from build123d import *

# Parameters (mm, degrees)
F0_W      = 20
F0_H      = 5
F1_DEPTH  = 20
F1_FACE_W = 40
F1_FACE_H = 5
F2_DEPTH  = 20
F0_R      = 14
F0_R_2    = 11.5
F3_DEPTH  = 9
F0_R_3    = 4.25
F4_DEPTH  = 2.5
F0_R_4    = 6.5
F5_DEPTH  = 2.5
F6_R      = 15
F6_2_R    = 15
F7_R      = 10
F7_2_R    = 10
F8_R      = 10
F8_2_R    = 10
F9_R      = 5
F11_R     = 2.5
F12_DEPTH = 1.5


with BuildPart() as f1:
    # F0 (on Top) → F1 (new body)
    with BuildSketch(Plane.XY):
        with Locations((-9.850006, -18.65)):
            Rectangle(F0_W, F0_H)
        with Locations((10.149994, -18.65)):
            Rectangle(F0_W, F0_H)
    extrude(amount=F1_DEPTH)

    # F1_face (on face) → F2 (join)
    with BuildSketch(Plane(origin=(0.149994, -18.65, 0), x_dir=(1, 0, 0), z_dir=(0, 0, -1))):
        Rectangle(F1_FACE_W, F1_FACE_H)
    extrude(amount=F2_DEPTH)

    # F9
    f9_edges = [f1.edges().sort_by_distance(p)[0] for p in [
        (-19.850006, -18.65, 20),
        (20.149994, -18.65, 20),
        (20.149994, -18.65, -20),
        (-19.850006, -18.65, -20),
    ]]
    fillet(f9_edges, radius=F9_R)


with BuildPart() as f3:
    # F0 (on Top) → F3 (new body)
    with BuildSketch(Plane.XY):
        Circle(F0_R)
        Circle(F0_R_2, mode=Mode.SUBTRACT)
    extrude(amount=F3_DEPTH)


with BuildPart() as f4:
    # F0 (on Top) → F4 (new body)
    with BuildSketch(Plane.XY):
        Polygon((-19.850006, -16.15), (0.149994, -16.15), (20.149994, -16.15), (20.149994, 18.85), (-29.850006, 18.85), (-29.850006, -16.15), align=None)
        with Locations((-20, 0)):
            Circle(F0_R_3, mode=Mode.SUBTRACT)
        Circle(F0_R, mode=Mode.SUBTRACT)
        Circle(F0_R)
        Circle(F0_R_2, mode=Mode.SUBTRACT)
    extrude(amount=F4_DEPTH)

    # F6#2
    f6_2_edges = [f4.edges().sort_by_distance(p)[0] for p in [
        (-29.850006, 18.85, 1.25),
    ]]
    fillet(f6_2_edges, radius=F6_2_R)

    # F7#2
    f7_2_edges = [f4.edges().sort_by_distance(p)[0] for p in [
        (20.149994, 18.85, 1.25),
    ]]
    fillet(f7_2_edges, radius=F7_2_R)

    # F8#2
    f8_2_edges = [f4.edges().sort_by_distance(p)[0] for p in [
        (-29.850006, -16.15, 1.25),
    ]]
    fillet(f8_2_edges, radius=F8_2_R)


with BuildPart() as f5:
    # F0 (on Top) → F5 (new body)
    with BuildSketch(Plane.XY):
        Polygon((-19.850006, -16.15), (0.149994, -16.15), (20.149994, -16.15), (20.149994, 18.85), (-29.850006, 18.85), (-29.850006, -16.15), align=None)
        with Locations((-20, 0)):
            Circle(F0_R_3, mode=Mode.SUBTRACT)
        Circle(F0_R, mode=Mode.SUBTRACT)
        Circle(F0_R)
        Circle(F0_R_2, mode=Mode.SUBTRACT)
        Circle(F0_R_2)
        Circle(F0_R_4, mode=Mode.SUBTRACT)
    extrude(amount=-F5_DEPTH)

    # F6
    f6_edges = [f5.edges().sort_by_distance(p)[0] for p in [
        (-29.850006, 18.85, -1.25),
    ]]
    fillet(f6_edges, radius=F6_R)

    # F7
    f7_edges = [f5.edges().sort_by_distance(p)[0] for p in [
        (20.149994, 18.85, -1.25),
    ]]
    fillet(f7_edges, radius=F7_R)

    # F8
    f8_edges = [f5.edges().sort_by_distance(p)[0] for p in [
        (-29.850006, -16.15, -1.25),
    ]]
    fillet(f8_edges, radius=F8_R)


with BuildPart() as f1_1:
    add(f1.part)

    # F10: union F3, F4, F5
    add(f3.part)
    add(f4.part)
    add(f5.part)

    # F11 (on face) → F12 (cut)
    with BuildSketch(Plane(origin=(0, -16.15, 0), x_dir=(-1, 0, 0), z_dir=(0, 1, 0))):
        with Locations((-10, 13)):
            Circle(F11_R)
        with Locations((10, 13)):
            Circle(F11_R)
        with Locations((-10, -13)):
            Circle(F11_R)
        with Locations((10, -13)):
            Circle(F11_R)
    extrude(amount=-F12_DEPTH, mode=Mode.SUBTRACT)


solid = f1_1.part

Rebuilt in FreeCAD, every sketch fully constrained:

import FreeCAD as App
import Part
import Sketcher
from FreeCAD import Vector
Q = App.Units.Quantity


def edges_at(feature, points):
    """Names of the edges that pass closest to the given points."""
    edges = feature.Shape.Edges
    near = lambda p: min(range(len(edges)), key=lambda i: edges[i].distToShape(Part.Vertex(*p))[0])
    return sorted({f"Edge{near(p) + 1}" for p in points})

doc = App.newDocument("Part")
body = doc.addObject("PartDesign::Body", "Body")

# Sketch on XY plane
sketch1 = body.newObject("Sketcher::SketchObject", "Sketch")
sketch1.AttachmentSupport = (doc.getObject("XY_Plane"), [""])
sketch1.MapMode = "FlatFace"
sketch1.addGeometry([
    Part.LineSegment(Vector(-20, -16, 0), Vector(-20, -21, 0)),
    Part.LineSegment(Vector(-20, -21, 0), Vector(20, -21, 0)),
    Part.LineSegment(Vector(20, -21, 0), Vector(20, -16, 0)),
    Part.LineSegment(Vector(20, -16, 0), Vector(-20, -16, 0)),
], False)
sketch1.addConstraint([
    Sketcher.Constraint("Coincident", 0, 2, 1, 1),
    Sketcher.Constraint("Coincident", 1, 2, 2, 1),
    Sketcher.Constraint("Coincident", 2, 2, 3, 1),
    Sketcher.Constraint("Coincident", 3, 2, 0, 1),
    Sketcher.Constraint("Vertical", 0),
    Sketcher.Constraint("Horizontal", 1),
    Sketcher.Constraint("Vertical", 2),
    Sketcher.Constraint("Horizontal", 3),
    Sketcher.Constraint("DistanceX", 1, 1, 1, 2, Q("40 mm")),
    Sketcher.Constraint("DistanceY", 0, 2, 0, 1, Q("5 mm")),
    Sketcher.Constraint("DistanceY", 0, 2, -1, 1, Q("21.15 mm")),
    Sketcher.Constraint("DistanceX", 0, 2, -1, 1, Q("19.850006 mm")),
])
pad1 = body.newObject("PartDesign::Pad", "Pad")
pad1.Profile = sketch1
pad1.Length = 20

# Sketch on XY plane
sketch2 = body.newObject("Sketcher::SketchObject", "Sketch001")
sketch2.AttachmentSupport = (doc.getObject("XY_Plane"), [""])
sketch2.MapMode = "FlatFace"
sketch2.addGeometry([
    Part.LineSegment(Vector(-20, -21, 0), Vector(-20, -16, 0)),
    Part.LineSegment(Vector(-20, -16, 0), Vector(20, -16, 0)),
    Part.LineSegment(Vector(20, -16, 0), Vector(20, -21, 0)),
    Part.LineSegment(Vector(20, -21, 0), Vector(-20, -21, 0)),
], False)
sketch2.addConstraint([
    Sketcher.Constraint("Coincident", 0, 2, 1, 1),
    Sketcher.Constraint("Coincident", 1, 2, 2, 1),
    Sketcher.Constraint("Coincident", 2, 2, 3, 1),
    Sketcher.Constraint("Coincident", 3, 2, 0, 1),
    Sketcher.Constraint("Vertical", 0),
    Sketcher.Constraint("Horizontal", 1),
    Sketcher.Constraint("Vertical", 2),
    Sketcher.Constraint("Horizontal", 3),
    Sketcher.Constraint("DistanceX", 1, 1, 1, 2, Q("40 mm")),
    Sketcher.Constraint("DistanceY", 0, 1, 0, 2, Q("5 mm")),
    Sketcher.Constraint("DistanceY", 0, 2, -1, 1, Q("16.15 mm")),
    Sketcher.Constraint("DistanceX", 0, 2, -1, 1, Q("19.850006 mm")),
])
pad2 = body.newObject("PartDesign::Pad", "Pad001")
pad2.Profile = sketch2
pad2.Length = 20
pad2.Reversed = True
doc.recompute()

fillet = body.newObject("PartDesign::Fillet", "Fillet")
fillet.Base = (pad2, edges_at(pad2, [
    (-19.85, -18.65, 20),
    (20.15, -18.65, 20),
    (20.15, -18.65, -20),
    (-19.85, -18.65, -20),
]))
fillet.Radius = 5
body2 = doc.addObject("PartDesign::Body", "Body001")

# Sketch on XY plane
sketch3 = body2.newObject("Sketcher::SketchObject", "Sketch002")
sketch3.AttachmentSupport = (doc.getObject("XY_Plane001"), [""])
sketch3.MapMode = "FlatFace"
sketch3.addGeometry([
    Part.Circle(Vector(0, 0, 0), Vector(0, 0, 1), 14),
    Part.Circle(Vector(0, 0, 0), Vector(0, 0, 1), 12),
], False)
sketch3.addConstraint([
    Sketcher.Constraint("Coincident", 0, 3, -1, 1),
    Sketcher.Constraint("Coincident", 1, 3, -1, 1),
    Sketcher.Constraint("Diameter", 0, Q("28 mm")),
    Sketcher.Constraint("Diameter", 1, Q("23 mm")),
])
pad3 = body2.newObject("PartDesign::Pad", "Pad002")
pad3.Profile = sketch3
pad3.Length = 9
body3 = doc.addObject("PartDesign::Body", "Body002")

# Sketch on XY plane
sketch4 = body3.newObject("Sketcher::SketchObject", "Sketch003")
sketch4.AttachmentSupport = (doc.getObject("XY_Plane002"), [""])
sketch4.MapMode = "FlatFace"
sketch4.addGeometry([
    Part.LineSegment(Vector(20.1, -16.1, 0), Vector(20.1, 18.9, 0)),  # 0
    Part.LineSegment(Vector(20.1, 18.9, 0), Vector(-29.9, 18.9, 0)),  # 1
    Part.LineSegment(Vector(-29.9, 18.9, 0), Vector(-29.9, -16.1, 0)),  # 2
    Part.LineSegment(Vector(-29.9, -16.1, 0), Vector(20.1, -16.1, 0)),  # 3
    Part.Circle(Vector(-20, 0, 0), Vector(0, 0, 1), 4.2),  # 4
    Part.Circle(Vector(0, 0, 0), Vector(0, 0, 1), 11.5),  # 5
], False)
sketch4.addConstraint([
    Sketcher.Constraint("Coincident", 0, 2, 1, 1),
    Sketcher.Constraint("Coincident", 1, 2, 2, 1),
    Sketcher.Constraint("Coincident", 2, 2, 3, 1),
    Sketcher.Constraint("Coincident", 3, 2, 0, 1),
    Sketcher.Constraint("Vertical", 0),
    Sketcher.Constraint("Horizontal", 1),
    Sketcher.Constraint("Vertical", 2),
    Sketcher.Constraint("Horizontal", 3),
    Sketcher.Constraint("Coincident", 5, 3, -1, 1),
    Sketcher.Constraint("PointOnObject", 4, 3, -1),
    Sketcher.Constraint("Diameter", 5, Q("23 mm")),
    Sketcher.Constraint("Diameter", 4, Q("8.5 mm")),
    Sketcher.Constraint("DistanceX", 1, 2, 1, 1, Q("50 mm")),
    Sketcher.Constraint("DistanceY", 0, 1, 0, 2, Q("35 mm")),
    Sketcher.Constraint("DistanceX", 4, 3, -1, 1, Q("20 mm")),
    Sketcher.Constraint("DistanceY", -1, 1, 0, 2, Q("18.85 mm")),
    Sketcher.Constraint("DistanceX", -1, 1, 0, 2, Q("20.149994 mm")),
])
pad4 = body3.newObject("PartDesign::Pad", "Pad003")
pad4.Profile = sketch4
pad4.Length = 2.5
doc.recompute()

fillet2 = body3.newObject("PartDesign::Fillet", "Fillet001")
fillet2.Base = (pad4, edges_at(pad4, [(-29.85, 18.85, 1.25)]))
fillet2.Radius = 15
doc.recompute()

fillet3 = body3.newObject("PartDesign::Fillet", "Fillet002")
fillet3.Base = (fillet2, edges_at(fillet2, [(20.15, 18.85, 1.25)]))
fillet3.Radius = 10
doc.recompute()

fillet4 = body3.newObject("PartDesign::Fillet", "Fillet003")
fillet4.Base = (fillet3, edges_at(fillet3, [(-29.85, -16.15, 1.25)]))
fillet4.Radius = 10
body4 = doc.addObject("PartDesign::Body", "Body003")

# Sketch on XY plane
sketch5 = body4.newObject("Sketcher::SketchObject", "Sketch004")
sketch5.AttachmentSupport = (doc.getObject("XY_Plane003"), [""])
sketch5.MapMode = "FlatFace"
sketch5.addGeometry([
    Part.LineSegment(Vector(20.1, -16.1, 0), Vector(20.1, 18.9, 0)),  # 0
    Part.LineSegment(Vector(20.1, 18.9, 0), Vector(-29.9, 18.9, 0)),  # 1
    Part.LineSegment(Vector(-29.9, 18.9, 0), Vector(-29.9, -16.1, 0)),  # 2
    Part.LineSegment(Vector(-29.9, -16.1, 0), Vector(20.1, -16.1, 0)),  # 3
    Part.Circle(Vector(-20, 0, 0), Vector(0, 0, 1), 4.2),  # 4
    Part.Circle(Vector(0, 0, 0), Vector(0, 0, 1), 6.5),  # 5
], False)
sketch5.addConstraint([
    Sketcher.Constraint("Coincident", 0, 2, 1, 1),
    Sketcher.Constraint("Coincident", 1, 2, 2, 1),
    Sketcher.Constraint("Coincident", 2, 2, 3, 1),
    Sketcher.Constraint("Coincident", 3, 2, 0, 1),
    Sketcher.Constraint("Vertical", 0),
    Sketcher.Constraint("Horizontal", 1),
    Sketcher.Constraint("Vertical", 2),
    Sketcher.Constraint("Horizontal", 3),
    Sketcher.Constraint("Coincident", 5, 3, -1, 1),
    Sketcher.Constraint("PointOnObject", 4, 3, -1),
    Sketcher.Constraint("Diameter", 5, Q("13 mm")),
    Sketcher.Constraint("Diameter", 4, Q("8.5 mm")),
    Sketcher.Constraint("DistanceX", 1, 2, 1, 1, Q("50 mm")),
    Sketcher.Constraint("DistanceY", 0, 1, 0, 2, Q("35 mm")),
    Sketcher.Constraint("DistanceX", 4, 3, -1, 1, Q("20 mm")),
    Sketcher.Constraint("DistanceY", -1, 1, 0, 2, Q("18.85 mm")),
    Sketcher.Constraint("DistanceX", -1, 1, 0, 2, Q("20.149994 mm")),
])
pad5 = body4.newObject("PartDesign::Pad", "Pad004")
pad5.Profile = sketch5
pad5.Length = 2.5
pad5.Reversed = True
doc.recompute()

fillet5 = body4.newObject("PartDesign::Fillet", "Fillet004")
fillet5.Base = (pad5, edges_at(pad5, [(-29.85, 18.85, -1.25)]))
fillet5.Radius = 15
doc.recompute()

fillet6 = body4.newObject("PartDesign::Fillet", "Fillet005")
fillet6.Base = (fillet5, edges_at(fillet5, [(20.15, 18.85, -1.25)]))
fillet6.Radius = 10
doc.recompute()

fillet7 = body4.newObject("PartDesign::Fillet", "Fillet006")
fillet7.Base = (fillet6, edges_at(fillet6, [(-29.85, -16.15, -1.25)]))
fillet7.Radius = 10
body.AllowCompound = True
doc.recompute()

boolean = body.newObject("PartDesign::Boolean", "Boolean")
boolean.Type = "Fuse"
boolean.addObjects([body2])
doc.recompute()

boolean2 = body.newObject("PartDesign::Boolean", "Boolean001")
boolean2.Type = "Fuse"
boolean2.addObjects([body3])
doc.recompute()

boolean3 = body.newObject("PartDesign::Boolean", "Boolean002")
boolean3.Type = "Fuse"
boolean3.addObjects([body4])

# Sketch on XZ plane
sketch6 = body.newObject("Sketcher::SketchObject", "Sketch005")
sketch6.AttachmentSupport = (doc.getObject("XZ_Plane"), [""])
sketch6.MapMode = "FlatFace"
sketch6.AttachmentOffset = App.Placement(Vector(0, 0, 16.15), App.Rotation())
sketch6.addGeometry([
    Part.Circle(Vector(10, 13, 0), Vector(0, 0, 1), 2.5),
    Part.Circle(Vector(-10, 13, 0), Vector(0, 0, 1), 2.5),
    Part.Circle(Vector(10, -13, 0), Vector(0, 0, 1), 2.5),
    Part.Circle(Vector(-10, -13, 0), Vector(0, 0, 1), 2.5),
], False)
sketch6.addConstraint([
    Sketcher.Constraint("Equal", 0, 1),
    Sketcher.Constraint("Equal", 1, 2),
    Sketcher.Constraint("Equal", 2, 3),
    Sketcher.Constraint("Symmetric", 1, 3, 2, 3, -1, 1),
    Sketcher.Constraint("Symmetric", 0, 3, 3, 3, -1, 1),
    Sketcher.Constraint("Symmetric", 0, 3, 1, 3, -2),
    Sketcher.Constraint("Diameter", 0, Q("5 mm")),
    Sketcher.Constraint("DistanceX", -1, 1, 0, 3, Q("10 mm")),
    Sketcher.Constraint("DistanceY", -1, 1, 0, 3, Q("13 mm")),
])
pocket1 = body.newObject("PartDesign::Pocket", "Pocket")
pocket1.Profile = sketch6
pocket1.Length = 1.5
pocket1.Reversed = True

doc.recompute()
